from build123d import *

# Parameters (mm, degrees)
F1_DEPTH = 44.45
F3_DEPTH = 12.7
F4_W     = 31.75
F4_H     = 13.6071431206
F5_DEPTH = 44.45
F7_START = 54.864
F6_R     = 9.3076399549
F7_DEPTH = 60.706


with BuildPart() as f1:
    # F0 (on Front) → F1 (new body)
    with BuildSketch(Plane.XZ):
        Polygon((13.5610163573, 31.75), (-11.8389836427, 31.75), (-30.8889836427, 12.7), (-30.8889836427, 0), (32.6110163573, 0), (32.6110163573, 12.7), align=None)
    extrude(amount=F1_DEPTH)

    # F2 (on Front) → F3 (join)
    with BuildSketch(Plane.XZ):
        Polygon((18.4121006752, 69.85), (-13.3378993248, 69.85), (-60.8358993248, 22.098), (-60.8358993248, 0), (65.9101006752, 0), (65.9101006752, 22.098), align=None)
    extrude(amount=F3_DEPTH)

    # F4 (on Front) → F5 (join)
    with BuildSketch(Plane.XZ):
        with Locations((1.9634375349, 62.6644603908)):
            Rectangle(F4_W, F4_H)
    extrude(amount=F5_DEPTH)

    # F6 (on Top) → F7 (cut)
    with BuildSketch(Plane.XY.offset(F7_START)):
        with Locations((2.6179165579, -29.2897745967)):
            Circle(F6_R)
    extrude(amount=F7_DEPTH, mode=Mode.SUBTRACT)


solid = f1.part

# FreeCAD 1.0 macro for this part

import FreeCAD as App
import Part
import Sketcher
Q = App.Units.Quantity

doc = App.newDocument("Part")
body = doc.addObject("PartDesign::Body", "Body")

# Sketch on XZ plane
sketch1 = body.newObject("Sketcher::SketchObject", "Sketch")
sketch1.AttachmentSupport = (doc.getObject("XZ_Plane"), [""])
sketch1.MapMode = "FlatFace"
sketch1.addGeometry([
    Part.LineSegment(App.Vector(14, 32, 0), App.Vector(-12, 32, 0)),  # 0
    Part.LineSegment(App.Vector(-12, 32, 0), App.Vector(-31, 13, 0)),  # 1
    Part.LineSegment(App.Vector(-31, 13, 0), App.Vector(-31, 0, 0)),  # 2
    Part.LineSegment(App.Vector(-31, 0, 0), App.Vector(33, 0, 0)),  # 3
    Part.LineSegment(App.Vector(33, 0, 0), App.Vector(33, 13, 0)),  # 4
    Part.LineSegment(App.Vector(33, 13, 0), App.Vector(14, 32, 0)),  # 5
], False)
sketch1.addConstraint([
    Sketcher.Constraint("Coincident", 0, 2, 1, 1),
    Sketcher.Constraint("Coincident", 1, 2, 2, 1),
    Sketcher.Constraint("Coincident", 2, 2, 3, 1),
    Sketcher.Constraint("Coincident", 3, 2, 4, 1),
    Sketcher.Constraint("Coincident", 4, 2, 5, 1),
    Sketcher.Constraint("Coincident", 5, 2, 0, 1),
    Sketcher.Constraint("Horizontal", 0),
    Sketcher.Constraint("Vertical", 2),
    Sketcher.Constraint("Horizontal", 3),
    Sketcher.Constraint("Vertical", 4),
    Sketcher.Constraint("PointOnObject", 2, 2, -1),
    Sketcher.Constraint("Perpendicular", 1, 5),
    Sketcher.Constraint("Horizontal", 1, 2, 4, 2),
    Sketcher.Constraint("Equal", 1, 5),
    Sketcher.Constraint("DistanceX", 0, 2, 0, 1, Q("1 in")),
    Sketcher.Constraint("DistanceX", 3, 1, 3, 2, Q("2.5 in")),
    Sketcher.Constraint("DistanceY", 2, 2, 2, 1, Q("0.5 in")),
    Sketcher.Constraint("DistanceX", 0, 2, -1, 1, Q("11.838984 mm")),
])
pad1 = body.newObject("PartDesign::Pad", "Pad")
pad1.Profile = sketch1
pad1.Length = Q("1.75 in")

# Sketch on XZ plane
sketch2 = body.newObject("Sketcher::SketchObject", "Sketch001")
sketch2.AttachmentSupport = (doc.getObject("XZ_Plane"), [""])
sketch2.MapMode = "FlatFace"
sketch2.addGeometry([
    Part.LineSegment(App.Vector(18, 70, 0), App.Vector(-13, 70, 0)),  # 0
    Part.LineSegment(App.Vector(-13, 70, 0), App.Vector(-61, 22, 0)),  # 1
    Part.LineSegment(App.Vector(-61, 22, 0), App.Vector(-61, 0, 0)),  # 2
    Part.LineSegment(App.Vector(-61, 0, 0), App.Vector(66, 0, 0)),  # 3
    Part.LineSegment(App.Vector(66, 0, 0), App.Vector(66, 22, 0)),  # 4
    Part.LineSegment(App.Vector(66, 22, 0), App.Vector(18, 70, 0)),  # 5
], False)
sketch2.addConstraint([
    Sketcher.Constraint("Coincident", 0, 2, 1, 1),
    Sketcher.Constraint("Coincident", 1, 2, 2, 1),
    Sketcher.Constraint("Coincident", 2, 2, 3, 1),
    Sketcher.Constraint("Coincident", 3, 2, 4, 1),
    Sketcher.Constraint("Coincident", 4, 2, 5, 1),
    Sketcher.Constraint("Coincident", 5, 2, 0, 1),
    Sketcher.Constraint("Horizontal", 0),
    Sketcher.Constraint("Vertical", 2),
    Sketcher.Constraint("Horizontal", 3),
    Sketcher.Constraint("Vertical", 4),
    Sketcher.Constraint("PointOnObject", 2, 2, -1),
    Sketcher.Constraint("Horizontal", 1, 2, 4, 2),
    Sketcher.Constraint("Equal", 1, 5),
    Sketcher.Constraint("DistanceX", 0, 2, 0, 1, Q("1.25 in")),
    Sketcher.Constraint("DistanceX", 3, 1, 3, 2, Q("4.99 in")),
    Sketcher.Constraint("DistanceY", 2, 2, 2, 1, Q("0.87 in")),
    Sketcher.Constraint("DistanceY", -1, 1, 0, 2, Q("2.75 in")),
    Sketcher.Constraint("DistanceX", 0, 2, -1, 1, Q("13.337899 mm")),
])
pad2 = body.newObject("PartDesign::Pad", "Pad001")
pad2.Profile = sketch2
pad2.Length = Q("0.5 in")

# Sketch on XZ plane
sketch3 = body.newObject("Sketcher::SketchObject", "Sketch002")
sketch3.AttachmentSupport = (doc.getObject("XZ_Plane"), [""])
sketch3.MapMode = "FlatFace"
sketch3.addGeometry([
    Part.LineSegment(App.Vector(-14, 69, 0), App.Vector(-14, 56, 0)),
    Part.LineSegment(App.Vector(-14, 56, 0), App.Vector(18, 56, 0)),
    Part.LineSegment(App.Vector(18, 56, 0), App.Vector(18, 69, 0)),
    Part.LineSegment(App.Vector(18, 69, 0), App.Vector(-14, 69, 0)),
], False)
sketch3.addConstraint([
    Sketcher.Constraint("Coincident", 0, 2, 1, 1),
    Sketcher.Constraint("Coincident", 1, 2, 2, 1),
    Sketcher.Constraint("Coincident", 2, 2, 3, 1),
    Sketcher.Constraint("Coincident", 3, 2, 0, 1),
    Sketcher.Constraint("Vertical", 0),
    Sketcher.Constraint("Horizontal", 1),
    Sketcher.Constraint("Vertical", 2),
    Sketcher.Constraint("Horizontal", 3),
    Sketcher.Constraint("DistanceX", 1, 1, 1, 2, Q("1.25 in")),
    Sketcher.Constraint("DistanceY", 0, 2, 0, 1, Q("13.607143 mm")),
    Sketcher.Constraint("DistanceY", -1, 1, 0, 2, Q("55.860889 mm")),
    Sketcher.Constraint("DistanceX", 0, 2, -1, 1, Q("13.911562 mm")),
])
pad3 = body.newObject("PartDesign::Pad", "Pad002")
pad3.Profile = sketch3
pad3.Length = Q("1.75 in")

# Sketch on XY plane
sketch4 = body.newObject("Sketcher::SketchObject", "Sketch003")
sketch4.AttachmentSupport = (doc.getObject("XY_Plane"), [""])
sketch4.MapMode = "FlatFace"
sketch4.AttachmentOffset = App.Placement(App.Vector(0, 0, 2.16 * 25.4), App.Rotation())
sketch4.addGeometry(Part.Circle(App.Vector(3, -29, 0), App.Vector(0, 0, 1), 9), False)
sketch4.addConstraint([
    Sketcher.Constraint("Diameter", 0, Q("18.61528 mm")),
    Sketcher.Constraint("DistanceX", -1, 1, 0, 3, Q("2.617917 mm")),
    Sketcher.Constraint("DistanceY", 0, 3, -1, 1, Q("29.289775 mm")),
])
pocket1 = body.newObject("PartDesign::Pocket", "Pocket")
pocket1.Profile = sketch4
pocket1.Length = Q("2.39 in")
pocket1.Reversed = True

doc.recompute()
